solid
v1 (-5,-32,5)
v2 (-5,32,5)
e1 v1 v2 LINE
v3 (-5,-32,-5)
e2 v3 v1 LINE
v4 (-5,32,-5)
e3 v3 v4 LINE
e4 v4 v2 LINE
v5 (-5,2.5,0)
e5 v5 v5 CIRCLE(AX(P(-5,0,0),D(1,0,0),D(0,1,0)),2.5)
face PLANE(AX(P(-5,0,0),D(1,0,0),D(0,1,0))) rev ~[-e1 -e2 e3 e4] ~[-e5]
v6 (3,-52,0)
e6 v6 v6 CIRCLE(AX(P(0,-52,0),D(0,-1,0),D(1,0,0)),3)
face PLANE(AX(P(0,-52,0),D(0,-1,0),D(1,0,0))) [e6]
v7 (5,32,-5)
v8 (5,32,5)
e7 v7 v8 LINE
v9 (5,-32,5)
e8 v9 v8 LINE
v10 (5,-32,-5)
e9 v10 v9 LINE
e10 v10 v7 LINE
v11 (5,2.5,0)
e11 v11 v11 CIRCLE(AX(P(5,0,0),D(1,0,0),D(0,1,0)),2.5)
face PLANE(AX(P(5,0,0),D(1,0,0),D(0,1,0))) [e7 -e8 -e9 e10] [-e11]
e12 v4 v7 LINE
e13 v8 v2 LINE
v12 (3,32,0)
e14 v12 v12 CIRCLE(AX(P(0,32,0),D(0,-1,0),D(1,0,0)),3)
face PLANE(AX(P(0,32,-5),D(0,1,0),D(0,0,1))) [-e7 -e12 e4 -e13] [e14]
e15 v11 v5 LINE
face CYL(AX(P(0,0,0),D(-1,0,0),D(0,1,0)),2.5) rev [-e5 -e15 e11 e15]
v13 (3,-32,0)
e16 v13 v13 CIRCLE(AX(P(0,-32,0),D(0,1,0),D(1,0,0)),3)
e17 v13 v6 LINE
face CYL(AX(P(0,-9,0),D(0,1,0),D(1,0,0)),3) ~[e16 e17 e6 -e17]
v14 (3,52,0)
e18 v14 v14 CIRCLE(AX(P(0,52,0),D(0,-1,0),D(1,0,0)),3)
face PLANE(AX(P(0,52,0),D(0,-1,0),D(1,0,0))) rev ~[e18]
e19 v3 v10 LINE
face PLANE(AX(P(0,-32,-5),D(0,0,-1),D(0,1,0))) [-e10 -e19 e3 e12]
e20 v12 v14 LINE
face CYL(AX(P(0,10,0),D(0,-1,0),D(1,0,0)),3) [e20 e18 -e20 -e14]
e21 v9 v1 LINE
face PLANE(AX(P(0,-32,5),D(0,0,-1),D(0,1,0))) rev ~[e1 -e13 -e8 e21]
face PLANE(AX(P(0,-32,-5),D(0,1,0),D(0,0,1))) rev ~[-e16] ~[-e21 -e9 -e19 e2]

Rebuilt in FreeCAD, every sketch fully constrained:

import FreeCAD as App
import Part
import Sketcher
from FreeCAD import Vector
Q = App.Units.Quantity

doc = App.newDocument("Part")
params = doc.addObject("Spreadsheet::Sheet", "Params")
for row, (alias, value) in enumerate([
    ("sketch1_diameter", "5 mm"),
    ("sketch1_width", "64 mm"),
    ("sketch1_height", "10 mm"),
    ("pad1_length", "10 mm"),
    ("sketch2_diameter", "6 mm"),
    ("pad2_length", "43 mm"),
    ("sketch3_diameter", "6 mm"),
    ("pad3_length", "42 mm"),
], start=1):
    params.set(f"A{row}", alias)
    params.set(f"B{row}", "=" + value)
    params.setAlias(f"B{row}", alias)

body = doc.addObject("PartDesign::Body", "Body")

sketch1 = body.newObject("Sketcher::SketchObject", "Sketch")
sketch1.AttachmentSupport = (doc.getObject("YZ_Plane"), [""])
sketch1.MapMode = "FlatFace"
sketch1.addGeometry([
    Part.LineSegment(Vector(-32, 5, 0), Vector(-32, -5, 0)),
    Part.LineSegment(Vector(-32, -5, 0), Vector(32, -5, 0)),
    Part.LineSegment(Vector(32, -5, 0), Vector(32, 5, 0)),
    Part.LineSegment(Vector(32, 5, 0), Vector(-32, 5, 0)),
    Part.Circle(Vector(0, 0, 0), Vector(0, 0, 1), 2.5),
], False)
sketch1.addConstraint([
    Sketcher.Constraint("Coincident", 0, 2, 1, 1),
    Sketcher.Constraint("Coincident", 1, 2, 2, 1),
    Sketcher.Constraint("Coincident", 2, 2, 3, 1),
    Sketcher.Constraint("Coincident", 3, 2, 0, 1),
    Sketcher.Constraint("Vertical", 0),
    Sketcher.Constraint("Horizontal", 1),
    Sketcher.Constraint("Vertical", 2),
    Sketcher.Constraint("Horizontal", 3),
    Sketcher.Constraint("Coincident", 4, 3, -1, 1),
    Sketcher.Constraint("Symmetric", 0, 2, 2, 2, -1, 1),
    Sketcher.Constraint("Diameter", 4, Q("5 mm")),
    Sketcher.Constraint("DistanceX", 1, 1, 1, 2, Q("64 mm")),
    Sketcher.Constraint("DistanceY", 0, 2, 0, 1, Q("10 mm")),
])
sketch1.setExpression("Constraints[10]", "Params.sketch1_diameter")
sketch1.setExpression("Constraints[11]", "Params.sketch1_width")
sketch1.setExpression("Constraints[12]", "Params.sketch1_height")
pad1 = body.newObject("PartDesign::Pad", "Pad")
pad1.Profile = sketch1
pad1.setExpression("Length", "Params.pad1_length")
pad1.Midplane = True

sketch2 = body.newObject("Sketcher::SketchObject", "Sketch001")
sketch2.AttachmentSupport = (doc.getObject("XZ_Plane"), [""])
sketch2.MapMode = "FlatFace"
sketch2.AttachmentOffset = App.Placement(Vector(0, 0, 9), App.Rotation())
sketch2.addGeometry(Part.Circle(Vector(0, 0, 0), Vector(0, 0, 1), 3), False)
sketch2.addConstraint([
    Sketcher.Constraint("Coincident", 0, 3, -1, 1),
    Sketcher.Constraint("Diameter", 0, Q("6 mm")),
])
sketch2.setExpression("Constraints[1]", "Params.sketch2_diameter")
pad2 = body.newObject("PartDesign::Pad", "Pad001")
pad2.Profile = sketch2
pad2.setExpression("Length", "Params.pad2_length")

sketch3 = body.newObject("Sketcher::SketchObject", "Sketch002")
sketch3.AttachmentSupport = (doc.getObject("XZ_Plane"), [""])
sketch3.MapMode = "FlatFace"
sketch3.AttachmentOffset = App.Placement(Vector(0, 0, -10), App.Rotation())
sketch3.addGeometry(Part.Circle(Vector(0, 0, 0), Vector(0, 0, 1), 3), False)
sketch3.addConstraint([
    Sketcher.Constraint("Coincident", 0, 3, -1, 1),
    Sketcher.Constraint("Diameter", 0, Q("6 mm")),
])
sketch3.setExpression("Constraints[1]", "Params.sketch3_diameter")
pad3 = body.newObject("PartDesign::Pad", "Pad002")
pad3.Profile = sketch3
pad3.setExpression("Length", "Params.pad3_length")
pad3.Reversed = True

doc.recompute()
